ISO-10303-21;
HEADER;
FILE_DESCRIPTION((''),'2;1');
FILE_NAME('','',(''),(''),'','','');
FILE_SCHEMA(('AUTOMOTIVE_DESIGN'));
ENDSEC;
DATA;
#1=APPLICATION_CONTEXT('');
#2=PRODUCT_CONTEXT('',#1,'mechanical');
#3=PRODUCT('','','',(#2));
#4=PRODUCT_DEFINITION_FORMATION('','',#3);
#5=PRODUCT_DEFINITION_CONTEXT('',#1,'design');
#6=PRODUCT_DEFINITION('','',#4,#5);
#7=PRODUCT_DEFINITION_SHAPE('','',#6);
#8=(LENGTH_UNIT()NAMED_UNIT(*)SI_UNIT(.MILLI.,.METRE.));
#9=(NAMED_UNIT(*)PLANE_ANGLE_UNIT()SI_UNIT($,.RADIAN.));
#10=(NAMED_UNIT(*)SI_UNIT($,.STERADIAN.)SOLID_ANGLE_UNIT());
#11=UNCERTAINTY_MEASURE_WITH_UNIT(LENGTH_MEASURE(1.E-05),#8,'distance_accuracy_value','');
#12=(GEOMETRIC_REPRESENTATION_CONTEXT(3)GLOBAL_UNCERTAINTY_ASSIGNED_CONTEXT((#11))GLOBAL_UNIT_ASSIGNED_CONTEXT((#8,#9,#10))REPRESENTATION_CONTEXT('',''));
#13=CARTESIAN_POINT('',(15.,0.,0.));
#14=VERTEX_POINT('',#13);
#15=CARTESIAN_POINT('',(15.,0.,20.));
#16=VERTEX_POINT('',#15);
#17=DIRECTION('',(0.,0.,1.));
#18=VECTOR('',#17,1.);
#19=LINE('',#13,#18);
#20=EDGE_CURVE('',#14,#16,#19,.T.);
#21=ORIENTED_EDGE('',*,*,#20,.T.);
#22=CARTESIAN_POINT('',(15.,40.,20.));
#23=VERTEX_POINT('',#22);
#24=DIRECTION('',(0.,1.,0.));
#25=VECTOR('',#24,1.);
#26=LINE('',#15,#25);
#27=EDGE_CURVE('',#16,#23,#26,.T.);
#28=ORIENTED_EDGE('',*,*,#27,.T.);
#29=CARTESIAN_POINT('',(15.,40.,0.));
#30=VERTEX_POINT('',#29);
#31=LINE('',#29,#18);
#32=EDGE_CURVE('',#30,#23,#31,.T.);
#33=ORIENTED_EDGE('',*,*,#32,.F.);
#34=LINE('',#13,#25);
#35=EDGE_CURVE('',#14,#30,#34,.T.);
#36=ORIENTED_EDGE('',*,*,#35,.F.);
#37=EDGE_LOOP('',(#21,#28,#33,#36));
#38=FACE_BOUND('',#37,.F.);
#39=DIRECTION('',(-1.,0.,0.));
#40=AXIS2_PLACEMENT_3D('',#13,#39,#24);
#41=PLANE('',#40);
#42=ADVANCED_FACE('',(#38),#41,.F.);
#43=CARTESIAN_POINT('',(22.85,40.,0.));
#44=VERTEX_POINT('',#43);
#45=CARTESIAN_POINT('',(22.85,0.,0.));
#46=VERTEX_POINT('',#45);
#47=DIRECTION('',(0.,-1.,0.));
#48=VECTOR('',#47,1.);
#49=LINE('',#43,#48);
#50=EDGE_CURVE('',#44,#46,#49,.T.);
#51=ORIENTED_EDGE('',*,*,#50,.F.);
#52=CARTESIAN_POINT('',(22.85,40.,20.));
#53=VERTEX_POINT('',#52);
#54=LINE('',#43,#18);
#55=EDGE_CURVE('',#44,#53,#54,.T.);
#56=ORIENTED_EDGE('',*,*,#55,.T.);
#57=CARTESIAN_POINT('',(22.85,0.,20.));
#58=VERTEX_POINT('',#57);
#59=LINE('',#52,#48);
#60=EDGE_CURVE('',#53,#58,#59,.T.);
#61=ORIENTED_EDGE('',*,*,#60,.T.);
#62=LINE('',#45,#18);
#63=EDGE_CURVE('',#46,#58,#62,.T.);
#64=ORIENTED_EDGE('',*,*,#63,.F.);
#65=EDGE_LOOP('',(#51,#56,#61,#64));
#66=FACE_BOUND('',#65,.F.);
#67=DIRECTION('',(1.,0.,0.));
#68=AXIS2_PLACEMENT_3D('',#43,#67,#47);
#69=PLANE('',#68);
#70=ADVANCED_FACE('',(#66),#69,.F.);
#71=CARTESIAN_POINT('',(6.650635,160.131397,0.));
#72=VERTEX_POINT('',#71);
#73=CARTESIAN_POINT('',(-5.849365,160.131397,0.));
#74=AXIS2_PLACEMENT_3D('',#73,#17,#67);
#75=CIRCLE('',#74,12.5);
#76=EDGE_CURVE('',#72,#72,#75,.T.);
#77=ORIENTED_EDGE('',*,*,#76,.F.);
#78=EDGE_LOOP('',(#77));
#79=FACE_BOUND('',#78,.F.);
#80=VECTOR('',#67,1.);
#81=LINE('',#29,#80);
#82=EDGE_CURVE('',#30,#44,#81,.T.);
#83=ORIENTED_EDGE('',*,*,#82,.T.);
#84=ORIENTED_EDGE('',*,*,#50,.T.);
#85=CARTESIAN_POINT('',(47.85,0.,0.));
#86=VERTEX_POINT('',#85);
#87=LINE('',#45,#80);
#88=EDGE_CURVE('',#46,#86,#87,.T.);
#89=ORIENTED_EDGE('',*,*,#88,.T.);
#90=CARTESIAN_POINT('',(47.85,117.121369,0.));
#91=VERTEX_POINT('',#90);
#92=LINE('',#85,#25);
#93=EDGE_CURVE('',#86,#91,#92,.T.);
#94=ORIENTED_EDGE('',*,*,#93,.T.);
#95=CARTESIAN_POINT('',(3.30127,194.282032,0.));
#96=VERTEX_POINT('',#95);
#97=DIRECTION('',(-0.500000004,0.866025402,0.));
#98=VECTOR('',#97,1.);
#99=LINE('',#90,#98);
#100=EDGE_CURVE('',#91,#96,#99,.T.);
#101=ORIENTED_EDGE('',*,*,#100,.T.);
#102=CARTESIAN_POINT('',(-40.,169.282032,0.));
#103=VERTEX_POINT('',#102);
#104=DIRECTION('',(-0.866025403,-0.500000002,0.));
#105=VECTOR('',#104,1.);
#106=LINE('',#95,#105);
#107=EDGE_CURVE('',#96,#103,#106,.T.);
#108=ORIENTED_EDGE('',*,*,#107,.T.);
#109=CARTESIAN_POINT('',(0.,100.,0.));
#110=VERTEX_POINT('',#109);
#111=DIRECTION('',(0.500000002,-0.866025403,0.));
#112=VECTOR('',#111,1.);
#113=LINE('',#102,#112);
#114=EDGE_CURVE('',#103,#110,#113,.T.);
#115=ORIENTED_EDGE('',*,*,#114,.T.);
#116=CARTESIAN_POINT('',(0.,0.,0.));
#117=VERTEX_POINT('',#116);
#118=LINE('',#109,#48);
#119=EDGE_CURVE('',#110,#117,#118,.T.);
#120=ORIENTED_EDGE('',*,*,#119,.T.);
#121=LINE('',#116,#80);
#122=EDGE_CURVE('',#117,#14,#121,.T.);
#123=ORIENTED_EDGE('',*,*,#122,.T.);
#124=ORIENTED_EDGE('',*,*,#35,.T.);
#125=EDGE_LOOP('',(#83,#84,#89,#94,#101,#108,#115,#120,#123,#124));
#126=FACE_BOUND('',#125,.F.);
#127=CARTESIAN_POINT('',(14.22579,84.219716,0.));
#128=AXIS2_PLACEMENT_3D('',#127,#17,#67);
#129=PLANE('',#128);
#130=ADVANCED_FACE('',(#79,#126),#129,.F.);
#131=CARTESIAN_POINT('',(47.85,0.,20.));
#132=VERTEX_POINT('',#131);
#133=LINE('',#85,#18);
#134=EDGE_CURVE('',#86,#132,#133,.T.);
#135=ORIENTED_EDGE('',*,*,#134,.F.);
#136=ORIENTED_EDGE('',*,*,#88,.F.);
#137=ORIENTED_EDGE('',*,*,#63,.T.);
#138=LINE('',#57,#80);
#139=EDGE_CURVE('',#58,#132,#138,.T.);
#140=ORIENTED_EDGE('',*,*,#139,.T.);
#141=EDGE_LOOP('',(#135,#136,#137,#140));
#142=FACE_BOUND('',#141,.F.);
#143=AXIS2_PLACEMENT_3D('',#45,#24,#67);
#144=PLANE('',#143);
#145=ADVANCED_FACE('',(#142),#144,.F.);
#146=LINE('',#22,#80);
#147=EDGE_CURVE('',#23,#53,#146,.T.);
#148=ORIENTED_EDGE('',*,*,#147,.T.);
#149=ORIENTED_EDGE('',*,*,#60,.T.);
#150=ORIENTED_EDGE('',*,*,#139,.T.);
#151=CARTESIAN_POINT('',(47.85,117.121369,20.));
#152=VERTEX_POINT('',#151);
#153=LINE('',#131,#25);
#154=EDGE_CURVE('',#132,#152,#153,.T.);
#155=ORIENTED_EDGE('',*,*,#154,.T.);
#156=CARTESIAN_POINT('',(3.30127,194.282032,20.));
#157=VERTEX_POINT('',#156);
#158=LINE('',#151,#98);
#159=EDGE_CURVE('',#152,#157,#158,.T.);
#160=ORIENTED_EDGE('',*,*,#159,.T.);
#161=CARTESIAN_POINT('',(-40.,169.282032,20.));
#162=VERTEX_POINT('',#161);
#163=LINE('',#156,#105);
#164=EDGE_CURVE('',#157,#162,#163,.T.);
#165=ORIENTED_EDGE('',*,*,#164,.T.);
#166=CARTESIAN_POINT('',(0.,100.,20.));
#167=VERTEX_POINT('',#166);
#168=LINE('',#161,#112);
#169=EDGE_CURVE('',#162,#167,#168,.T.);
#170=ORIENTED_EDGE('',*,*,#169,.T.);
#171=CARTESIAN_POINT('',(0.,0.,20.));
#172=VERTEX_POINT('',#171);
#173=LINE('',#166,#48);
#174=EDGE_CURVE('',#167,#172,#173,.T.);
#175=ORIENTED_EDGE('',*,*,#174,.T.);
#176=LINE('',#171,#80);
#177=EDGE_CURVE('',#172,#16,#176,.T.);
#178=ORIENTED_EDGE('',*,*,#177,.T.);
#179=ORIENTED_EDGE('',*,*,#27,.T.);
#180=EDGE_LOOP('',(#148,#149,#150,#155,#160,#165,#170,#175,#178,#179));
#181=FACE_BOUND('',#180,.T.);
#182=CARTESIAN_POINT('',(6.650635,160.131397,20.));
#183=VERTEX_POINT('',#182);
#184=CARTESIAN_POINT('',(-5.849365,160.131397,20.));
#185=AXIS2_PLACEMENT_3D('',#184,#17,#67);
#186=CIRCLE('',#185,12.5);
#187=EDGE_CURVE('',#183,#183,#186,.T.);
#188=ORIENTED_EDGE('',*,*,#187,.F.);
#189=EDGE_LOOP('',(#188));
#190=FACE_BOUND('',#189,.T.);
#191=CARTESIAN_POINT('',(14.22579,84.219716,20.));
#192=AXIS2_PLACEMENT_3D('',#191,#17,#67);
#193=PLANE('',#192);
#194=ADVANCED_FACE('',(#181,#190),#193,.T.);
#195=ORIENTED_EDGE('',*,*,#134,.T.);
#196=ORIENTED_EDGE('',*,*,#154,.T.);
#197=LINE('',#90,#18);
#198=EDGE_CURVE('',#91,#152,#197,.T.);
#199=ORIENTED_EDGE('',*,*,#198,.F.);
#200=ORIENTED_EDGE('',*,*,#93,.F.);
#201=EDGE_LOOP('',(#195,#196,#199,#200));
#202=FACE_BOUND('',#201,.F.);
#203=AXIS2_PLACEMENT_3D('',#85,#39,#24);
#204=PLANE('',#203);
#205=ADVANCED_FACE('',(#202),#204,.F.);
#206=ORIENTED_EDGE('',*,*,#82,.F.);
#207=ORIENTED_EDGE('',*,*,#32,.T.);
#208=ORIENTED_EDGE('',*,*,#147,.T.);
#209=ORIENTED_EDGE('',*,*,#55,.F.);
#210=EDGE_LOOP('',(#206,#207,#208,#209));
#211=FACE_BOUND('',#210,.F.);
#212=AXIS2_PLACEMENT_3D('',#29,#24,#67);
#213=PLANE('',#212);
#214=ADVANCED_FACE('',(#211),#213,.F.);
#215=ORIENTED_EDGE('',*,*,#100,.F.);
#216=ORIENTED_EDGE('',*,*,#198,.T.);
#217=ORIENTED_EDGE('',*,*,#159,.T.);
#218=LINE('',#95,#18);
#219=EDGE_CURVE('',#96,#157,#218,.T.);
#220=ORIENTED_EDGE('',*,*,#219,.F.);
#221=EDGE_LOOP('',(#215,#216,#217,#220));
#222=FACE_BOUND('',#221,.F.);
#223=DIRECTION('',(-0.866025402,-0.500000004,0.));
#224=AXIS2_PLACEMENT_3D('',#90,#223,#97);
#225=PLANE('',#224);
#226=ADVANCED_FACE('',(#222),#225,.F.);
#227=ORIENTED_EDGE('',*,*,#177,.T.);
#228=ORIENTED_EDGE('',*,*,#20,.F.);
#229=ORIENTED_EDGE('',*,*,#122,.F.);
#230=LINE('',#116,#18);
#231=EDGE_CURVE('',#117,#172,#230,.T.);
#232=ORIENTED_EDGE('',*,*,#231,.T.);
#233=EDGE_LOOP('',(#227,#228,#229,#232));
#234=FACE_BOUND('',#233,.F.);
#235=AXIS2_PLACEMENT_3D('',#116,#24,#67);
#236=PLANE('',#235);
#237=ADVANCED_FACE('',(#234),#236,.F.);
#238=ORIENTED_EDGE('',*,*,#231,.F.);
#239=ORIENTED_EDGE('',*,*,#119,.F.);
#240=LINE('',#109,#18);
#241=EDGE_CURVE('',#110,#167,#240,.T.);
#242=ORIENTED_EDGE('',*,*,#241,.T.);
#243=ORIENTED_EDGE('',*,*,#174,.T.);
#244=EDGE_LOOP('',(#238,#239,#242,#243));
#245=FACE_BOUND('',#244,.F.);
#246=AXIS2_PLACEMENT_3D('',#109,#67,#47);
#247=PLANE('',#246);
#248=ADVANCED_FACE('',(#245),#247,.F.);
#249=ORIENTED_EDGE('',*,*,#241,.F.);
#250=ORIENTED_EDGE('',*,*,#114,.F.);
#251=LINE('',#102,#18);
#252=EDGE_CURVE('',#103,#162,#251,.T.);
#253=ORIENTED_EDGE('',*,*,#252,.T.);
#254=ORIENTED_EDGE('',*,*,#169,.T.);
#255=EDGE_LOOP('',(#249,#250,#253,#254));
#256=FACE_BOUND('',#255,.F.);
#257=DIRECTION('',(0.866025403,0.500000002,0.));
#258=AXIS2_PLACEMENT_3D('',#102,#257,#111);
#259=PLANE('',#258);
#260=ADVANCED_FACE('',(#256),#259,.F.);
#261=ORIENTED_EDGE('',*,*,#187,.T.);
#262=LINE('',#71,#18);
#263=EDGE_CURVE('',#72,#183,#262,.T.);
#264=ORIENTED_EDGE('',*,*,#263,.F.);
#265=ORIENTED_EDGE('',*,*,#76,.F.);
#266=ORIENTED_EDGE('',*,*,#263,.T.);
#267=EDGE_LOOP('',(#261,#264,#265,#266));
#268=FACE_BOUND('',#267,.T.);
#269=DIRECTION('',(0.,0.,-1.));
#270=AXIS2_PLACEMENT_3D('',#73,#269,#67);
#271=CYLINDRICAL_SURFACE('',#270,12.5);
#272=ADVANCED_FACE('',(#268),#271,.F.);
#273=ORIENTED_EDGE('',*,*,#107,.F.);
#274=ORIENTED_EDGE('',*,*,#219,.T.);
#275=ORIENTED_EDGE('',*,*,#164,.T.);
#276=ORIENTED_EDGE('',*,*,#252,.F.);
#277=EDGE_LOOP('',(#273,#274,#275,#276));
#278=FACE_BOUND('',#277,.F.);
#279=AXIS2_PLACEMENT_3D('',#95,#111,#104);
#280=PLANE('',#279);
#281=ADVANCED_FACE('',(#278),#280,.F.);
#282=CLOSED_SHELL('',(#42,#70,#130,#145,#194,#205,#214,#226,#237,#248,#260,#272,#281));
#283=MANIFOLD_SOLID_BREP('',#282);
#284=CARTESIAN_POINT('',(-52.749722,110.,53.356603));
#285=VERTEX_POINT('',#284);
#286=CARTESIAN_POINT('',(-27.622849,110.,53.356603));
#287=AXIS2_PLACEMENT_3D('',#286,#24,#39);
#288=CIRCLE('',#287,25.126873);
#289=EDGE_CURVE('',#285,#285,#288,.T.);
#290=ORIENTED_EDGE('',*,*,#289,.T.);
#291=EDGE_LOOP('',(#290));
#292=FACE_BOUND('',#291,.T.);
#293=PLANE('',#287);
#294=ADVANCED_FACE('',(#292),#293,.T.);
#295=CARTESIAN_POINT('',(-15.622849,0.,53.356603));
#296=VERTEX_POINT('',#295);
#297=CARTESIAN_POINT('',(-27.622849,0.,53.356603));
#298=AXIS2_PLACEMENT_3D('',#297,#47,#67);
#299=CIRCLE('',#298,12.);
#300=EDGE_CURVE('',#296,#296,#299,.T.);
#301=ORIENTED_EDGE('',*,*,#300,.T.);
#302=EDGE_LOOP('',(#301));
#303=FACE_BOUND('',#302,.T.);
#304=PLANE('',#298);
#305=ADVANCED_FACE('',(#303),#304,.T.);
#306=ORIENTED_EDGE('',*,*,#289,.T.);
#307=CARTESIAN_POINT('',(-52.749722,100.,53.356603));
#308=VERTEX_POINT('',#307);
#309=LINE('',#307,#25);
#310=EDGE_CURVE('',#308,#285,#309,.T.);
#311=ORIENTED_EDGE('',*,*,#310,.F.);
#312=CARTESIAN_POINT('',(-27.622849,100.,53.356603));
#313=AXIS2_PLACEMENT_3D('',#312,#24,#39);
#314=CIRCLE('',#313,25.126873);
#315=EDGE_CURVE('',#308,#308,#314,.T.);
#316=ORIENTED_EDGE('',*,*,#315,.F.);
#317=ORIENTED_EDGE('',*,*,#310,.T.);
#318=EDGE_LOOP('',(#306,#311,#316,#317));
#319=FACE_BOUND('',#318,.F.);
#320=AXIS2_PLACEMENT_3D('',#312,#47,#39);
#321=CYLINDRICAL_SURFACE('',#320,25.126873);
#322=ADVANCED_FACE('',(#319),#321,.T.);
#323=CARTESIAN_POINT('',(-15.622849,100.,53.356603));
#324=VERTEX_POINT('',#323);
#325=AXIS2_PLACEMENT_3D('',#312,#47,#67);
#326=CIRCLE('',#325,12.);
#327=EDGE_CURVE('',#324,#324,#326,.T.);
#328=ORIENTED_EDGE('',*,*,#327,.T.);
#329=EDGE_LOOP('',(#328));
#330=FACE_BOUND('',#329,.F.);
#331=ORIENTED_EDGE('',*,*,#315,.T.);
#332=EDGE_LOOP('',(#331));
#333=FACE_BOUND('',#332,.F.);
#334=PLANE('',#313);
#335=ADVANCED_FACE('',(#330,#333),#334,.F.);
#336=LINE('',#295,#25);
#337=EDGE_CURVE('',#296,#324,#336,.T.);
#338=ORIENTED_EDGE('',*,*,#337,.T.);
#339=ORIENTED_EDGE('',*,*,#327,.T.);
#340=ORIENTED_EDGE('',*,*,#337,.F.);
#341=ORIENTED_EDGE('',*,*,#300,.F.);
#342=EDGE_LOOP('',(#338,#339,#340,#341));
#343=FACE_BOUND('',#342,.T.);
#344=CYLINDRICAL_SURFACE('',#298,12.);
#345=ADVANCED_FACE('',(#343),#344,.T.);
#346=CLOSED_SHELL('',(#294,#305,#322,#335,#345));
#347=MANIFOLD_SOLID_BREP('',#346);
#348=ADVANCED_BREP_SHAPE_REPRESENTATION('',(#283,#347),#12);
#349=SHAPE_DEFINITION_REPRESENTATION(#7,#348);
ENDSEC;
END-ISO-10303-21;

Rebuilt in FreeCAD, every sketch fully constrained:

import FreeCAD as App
import Part
import Sketcher
Q = App.Units.Quantity

doc = App.newDocument("Part")
body = doc.addObject("PartDesign::Body", "Body")

sketch1 = doc.addObject("Sketcher::SketchObject", "Sketch")
body.addObject(sketch1)
sketch1.AttachmentSupport = (doc.XY_Plane, [""])
sketch1.MapMode = "FlatFace"
sketch1.addGeometry([
    Part.LineSegment(App.Vector(0, 100, 0), App.Vector(0, 0, 0)),
    Part.LineSegment(App.Vector(0, 0, 0), App.Vector(15, 0, 0)),
    Part.LineSegment(App.Vector(15, 0, 0), App.Vector(15, 40, 0)),
    Part.LineSegment(App.Vector(15, 40, 0), App.Vector(23, 40, 0)),
    Part.LineSegment(App.Vector(23, 40, 0), App.Vector(23, 0, 0)),
    Part.LineSegment(App.Vector(23, 0, 0), App.Vector(48, 0, 0)),
    Part.LineSegment(App.Vector(48, 0, 0), App.Vector(48, 117, 0)),
    Part.LineSegment(App.Vector(48, 117, 0), App.Vector(3, 194, 0)),
    Part.LineSegment(App.Vector(3, 194, 0), App.Vector(-40, 169, 0)),
    Part.LineSegment(App.Vector(-40, 169, 0), App.Vector(0, 100, 0)),
    Part.Circle(App.Vector(-6, 160, 0), App.Vector(0, 0, 1), 12),
], False)
sketch1.addConstraint([
    Sketcher.Constraint("Coincident", 0, 2, 1, 1),
    Sketcher.Constraint("Coincident", 1, 2, 2, 1),
    Sketcher.Constraint("Coincident", 2, 2, 3, 1),
    Sketcher.Constraint("Coincident", 3, 2, 4, 1),
    Sketcher.Constraint("Coincident", 4, 2, 5, 1),
    Sketcher.Constraint("Coincident", 5, 2, 6, 1),
    Sketcher.Constraint("Coincident", 6, 2, 7, 1),
    Sketcher.Constraint("Coincident", 7, 2, 8, 1),
    Sketcher.Constraint("Coincident", 8, 2, 9, 1),
    Sketcher.Constraint("Coincident", 9, 2, 0, 1),
    Sketcher.Constraint("Vertical", 0),
    Sketcher.Constraint("Horizontal", 1),
    Sketcher.Constraint("Vertical", 2),
    Sketcher.Constraint("Horizontal", 3),
    Sketcher.Constraint("Vertical", 4),
    Sketcher.Constraint("Horizontal", 5),
    Sketcher.Constraint("Vertical", 6),
    Sketcher.Constraint("Coincident", 0, 2, -1, 1),
    Sketcher.Constraint("PointOnObject", 4, 2, -1),
    Sketcher.Constraint("Perpendicular", 7, 8),
    Sketcher.Constraint("Perpendicular", 8, 9),
    Sketcher.Constraint("Diameter", 10, 25.0),
    Sketcher.Constraint("DistanceX", 1, 1, 1, 2, 15.0),
    Sketcher.Constraint("DistanceX", 5, 1, 5, 2, 25.0),
    Sketcher.Constraint("DistanceY", 0, 2, 0, 1, 100.0),
    Sketcher.Constraint("DistanceY", 2, 1, 2, 2, 40.0),
    Sketcher.Constraint("Angle", 7, Q("120 deg")),
    Sketcher.Constraint("Distance", 8, 50.0),
    Sketcher.Constraint("Distance", 9, 80.0),
    Sketcher.Constraint("DistanceX", 3, 1, 3, 2, 7.85),
    Sketcher.Constraint("DistanceX", 10, 3, -1, 1, 5.849365),
    Sketcher.Constraint("DistanceY", -1, 1, 10, 3, 160.131397),
])
pad1 = doc.addObject("PartDesign::Pad", "Pad")
body.addObject(pad1)
pad1.Profile = sketch1
pad1.Length = 20
body2 = doc.addObject("PartDesign::Body", "Body001")

sketch2 = doc.addObject("Sketcher::SketchObject", "Sketch001")
body2.addObject(sketch2)
sketch2.AttachmentSupport = (doc.getObject("XZ_Plane001"), [""])
sketch2.MapMode = "FlatFace"
sketch2.addGeometry(Part.Circle(App.Vector(-28, 53, 0), App.Vector(0, 0, 1), 12), False)
sketch2.addConstraint([
    Sketcher.Constraint("Diameter", 0, 24.0),
    Sketcher.Constraint("DistanceX", 0, 3, -1, 1, 27.622849),
    Sketcher.Constraint("DistanceY", -1, 1, 0, 3, 53.356603),
])
pad2 = doc.addObject("PartDesign::Pad", "Pad001")
body2.addObject(pad2)
pad2.Profile = sketch2
pad2.Length = 100
pad2.Reversed = True

sketch3 = doc.addObject("Sketcher::SketchObject", "Sketch002")
body2.addObject(sketch3)
sketch3.AttachmentSupport = (doc.getObject("XZ_Plane001"), [""])
sketch3.MapMode = "FlatFace"
sketch3.AttachmentOffset = App.Placement(App.Vector(0, 0, -100), App.Rotation())
sketch3.addGeometry(Part.Circle(App.Vector(-28, 53, 0), App.Vector(0, 0, 1), 25), False)
sketch3.addConstraint([
    Sketcher.Constraint("Diameter", 0, 50.253746),
    Sketcher.Constraint("DistanceX", 0, 3, -1, 1, 27.622849),
    Sketcher.Constraint("DistanceY", -1, 1, 0, 3, 53.356603),
])
pad3 = doc.addObject("PartDesign::Pad", "Pad002")
body2.addObject(pad3)
pad3.Profile = sketch3
pad3.Length = 10
pad3.Reversed = True

doc.recompute()
